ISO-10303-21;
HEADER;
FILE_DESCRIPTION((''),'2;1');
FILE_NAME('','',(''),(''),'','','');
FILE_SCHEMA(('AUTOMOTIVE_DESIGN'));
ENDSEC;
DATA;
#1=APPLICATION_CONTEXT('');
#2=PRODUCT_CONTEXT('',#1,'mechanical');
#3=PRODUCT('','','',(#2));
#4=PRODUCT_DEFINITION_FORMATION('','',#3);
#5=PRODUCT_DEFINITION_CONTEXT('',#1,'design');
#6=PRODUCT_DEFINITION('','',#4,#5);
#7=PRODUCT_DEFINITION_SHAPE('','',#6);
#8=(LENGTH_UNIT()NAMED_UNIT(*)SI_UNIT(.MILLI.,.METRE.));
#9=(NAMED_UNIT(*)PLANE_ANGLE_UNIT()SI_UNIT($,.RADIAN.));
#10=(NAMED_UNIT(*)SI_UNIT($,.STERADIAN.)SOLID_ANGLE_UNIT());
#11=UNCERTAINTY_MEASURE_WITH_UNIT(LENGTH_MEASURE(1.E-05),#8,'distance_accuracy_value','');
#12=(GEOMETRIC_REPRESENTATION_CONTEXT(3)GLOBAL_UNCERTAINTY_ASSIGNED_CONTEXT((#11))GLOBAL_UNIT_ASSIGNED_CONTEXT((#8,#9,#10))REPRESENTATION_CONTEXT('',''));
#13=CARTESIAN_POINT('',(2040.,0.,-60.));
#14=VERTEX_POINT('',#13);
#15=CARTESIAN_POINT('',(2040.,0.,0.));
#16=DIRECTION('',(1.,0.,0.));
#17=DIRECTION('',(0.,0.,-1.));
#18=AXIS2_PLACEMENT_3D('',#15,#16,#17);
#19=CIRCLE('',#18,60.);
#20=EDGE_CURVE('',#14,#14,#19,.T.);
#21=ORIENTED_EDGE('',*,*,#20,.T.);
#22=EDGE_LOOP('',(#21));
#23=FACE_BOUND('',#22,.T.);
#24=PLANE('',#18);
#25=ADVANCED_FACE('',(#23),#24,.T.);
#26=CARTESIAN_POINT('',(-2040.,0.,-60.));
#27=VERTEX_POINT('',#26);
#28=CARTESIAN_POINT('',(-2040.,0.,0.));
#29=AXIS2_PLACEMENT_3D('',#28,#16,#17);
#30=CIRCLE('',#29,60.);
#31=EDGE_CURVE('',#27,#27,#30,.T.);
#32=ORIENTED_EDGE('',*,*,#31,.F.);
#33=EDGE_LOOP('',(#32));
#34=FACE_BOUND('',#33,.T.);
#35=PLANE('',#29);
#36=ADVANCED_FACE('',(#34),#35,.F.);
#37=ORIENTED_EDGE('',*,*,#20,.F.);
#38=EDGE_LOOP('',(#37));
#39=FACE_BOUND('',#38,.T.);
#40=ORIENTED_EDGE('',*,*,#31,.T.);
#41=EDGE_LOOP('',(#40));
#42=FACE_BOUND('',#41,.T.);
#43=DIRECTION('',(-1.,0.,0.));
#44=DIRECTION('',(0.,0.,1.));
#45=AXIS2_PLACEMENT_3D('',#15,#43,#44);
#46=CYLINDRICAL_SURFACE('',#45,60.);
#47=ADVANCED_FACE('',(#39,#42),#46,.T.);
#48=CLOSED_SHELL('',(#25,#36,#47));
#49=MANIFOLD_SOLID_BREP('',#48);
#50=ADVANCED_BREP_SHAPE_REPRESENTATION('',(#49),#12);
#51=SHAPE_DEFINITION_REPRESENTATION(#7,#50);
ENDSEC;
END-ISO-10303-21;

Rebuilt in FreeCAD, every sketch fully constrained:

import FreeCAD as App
import Part
import Sketcher

doc = App.newDocument("Part")
body = doc.addObject("PartDesign::Body", "Body")

# Sketch on YZ plane
sketch1 = doc.addObject("Sketcher::SketchObject", "Sketch")
body.addObject(sketch1)
sketch1.AttachmentSupport = (doc.YZ_Plane, [""])
sketch1.MapMode = "FlatFace"
sketch1.addGeometry(Part.Circle(App.Vector(0, 0, 0), App.Vector(0, 0, 1), 60), False)
sketch1.addConstraint(Sketcher.Constraint("Coincident", 0, 3, -1, 1))
sketch1.addConstraint(Sketcher.Constraint("Diameter", 0, 120.0))
pad1 = doc.addObject("PartDesign::Pad", "Pad")
body.addObject(pad1)
pad1.Profile = sketch1
pad1.Length = 4080
pad1.Midplane = True

doc.recompute()
